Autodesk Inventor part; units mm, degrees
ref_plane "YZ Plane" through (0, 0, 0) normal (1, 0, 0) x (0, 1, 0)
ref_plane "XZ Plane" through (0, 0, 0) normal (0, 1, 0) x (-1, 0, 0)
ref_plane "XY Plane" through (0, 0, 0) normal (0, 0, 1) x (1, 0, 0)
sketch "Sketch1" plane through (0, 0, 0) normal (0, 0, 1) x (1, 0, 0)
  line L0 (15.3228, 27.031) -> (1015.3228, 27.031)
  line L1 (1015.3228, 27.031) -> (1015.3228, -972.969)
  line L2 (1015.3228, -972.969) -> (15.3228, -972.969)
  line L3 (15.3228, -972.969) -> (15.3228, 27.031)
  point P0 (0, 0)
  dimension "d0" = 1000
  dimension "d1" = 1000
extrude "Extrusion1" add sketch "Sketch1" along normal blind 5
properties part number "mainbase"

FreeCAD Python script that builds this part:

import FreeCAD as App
import Part
import Sketcher

V = App.Vector

doc = App.newDocument("Part")
body = doc.addObject("PartDesign::Body", "Body")

# Sketch on XY plane
sketch1 = doc.addObject("Sketcher::SketchObject", "Sketch")
body.addObject(sketch1)
sketch1.AttachmentSupport = (doc.XY_Plane, [""])
sketch1.MapMode = "FlatFace"
sketch1.addGeometry([
    Part.LineSegment(V(1015.3228, 27.031, 0), V(15.3228, 27.031, 0)),
    Part.LineSegment(V(15.3228, 27.031, 0), V(15.3228, -972.969, 0)),
    Part.LineSegment(V(15.3228, -972.969, 0), V(1015.3228, -972.969, 0)),
    Part.LineSegment(V(1015.3228, -972.969, 0), V(1015.3228, 27.031, 0)),
], False)
sketch1.addConstraint([
    Sketcher.Constraint("Coincident", 0, 2, 1, 1),
    Sketcher.Constraint("Coincident", 1, 2, 2, 1),
    Sketcher.Constraint("Coincident", 2, 2, 3, 1),
    Sketcher.Constraint("Coincident", 3, 2, 0, 1),
    Sketcher.Constraint("Horizontal", 0),
    Sketcher.Constraint("Vertical", 1),
    Sketcher.Constraint("Horizontal", 2),
    Sketcher.Constraint("Vertical", 3),
    Sketcher.Constraint("Equal", 2, 1),
    Sketcher.Constraint("DistanceX", 0, 2, 0, 1, 1000.0),
    Sketcher.Constraint("DistanceY", -1, 1, 0, 2, 27.031),
    Sketcher.Constraint("DistanceX", -1, 1, 0, 2, 15.3228),
])
pad1 = doc.addObject("PartDesign::Pad", "Pad")
body.addObject(pad1)
pad1.Profile = sketch1
pad1.Length = 5

doc.recompute()
